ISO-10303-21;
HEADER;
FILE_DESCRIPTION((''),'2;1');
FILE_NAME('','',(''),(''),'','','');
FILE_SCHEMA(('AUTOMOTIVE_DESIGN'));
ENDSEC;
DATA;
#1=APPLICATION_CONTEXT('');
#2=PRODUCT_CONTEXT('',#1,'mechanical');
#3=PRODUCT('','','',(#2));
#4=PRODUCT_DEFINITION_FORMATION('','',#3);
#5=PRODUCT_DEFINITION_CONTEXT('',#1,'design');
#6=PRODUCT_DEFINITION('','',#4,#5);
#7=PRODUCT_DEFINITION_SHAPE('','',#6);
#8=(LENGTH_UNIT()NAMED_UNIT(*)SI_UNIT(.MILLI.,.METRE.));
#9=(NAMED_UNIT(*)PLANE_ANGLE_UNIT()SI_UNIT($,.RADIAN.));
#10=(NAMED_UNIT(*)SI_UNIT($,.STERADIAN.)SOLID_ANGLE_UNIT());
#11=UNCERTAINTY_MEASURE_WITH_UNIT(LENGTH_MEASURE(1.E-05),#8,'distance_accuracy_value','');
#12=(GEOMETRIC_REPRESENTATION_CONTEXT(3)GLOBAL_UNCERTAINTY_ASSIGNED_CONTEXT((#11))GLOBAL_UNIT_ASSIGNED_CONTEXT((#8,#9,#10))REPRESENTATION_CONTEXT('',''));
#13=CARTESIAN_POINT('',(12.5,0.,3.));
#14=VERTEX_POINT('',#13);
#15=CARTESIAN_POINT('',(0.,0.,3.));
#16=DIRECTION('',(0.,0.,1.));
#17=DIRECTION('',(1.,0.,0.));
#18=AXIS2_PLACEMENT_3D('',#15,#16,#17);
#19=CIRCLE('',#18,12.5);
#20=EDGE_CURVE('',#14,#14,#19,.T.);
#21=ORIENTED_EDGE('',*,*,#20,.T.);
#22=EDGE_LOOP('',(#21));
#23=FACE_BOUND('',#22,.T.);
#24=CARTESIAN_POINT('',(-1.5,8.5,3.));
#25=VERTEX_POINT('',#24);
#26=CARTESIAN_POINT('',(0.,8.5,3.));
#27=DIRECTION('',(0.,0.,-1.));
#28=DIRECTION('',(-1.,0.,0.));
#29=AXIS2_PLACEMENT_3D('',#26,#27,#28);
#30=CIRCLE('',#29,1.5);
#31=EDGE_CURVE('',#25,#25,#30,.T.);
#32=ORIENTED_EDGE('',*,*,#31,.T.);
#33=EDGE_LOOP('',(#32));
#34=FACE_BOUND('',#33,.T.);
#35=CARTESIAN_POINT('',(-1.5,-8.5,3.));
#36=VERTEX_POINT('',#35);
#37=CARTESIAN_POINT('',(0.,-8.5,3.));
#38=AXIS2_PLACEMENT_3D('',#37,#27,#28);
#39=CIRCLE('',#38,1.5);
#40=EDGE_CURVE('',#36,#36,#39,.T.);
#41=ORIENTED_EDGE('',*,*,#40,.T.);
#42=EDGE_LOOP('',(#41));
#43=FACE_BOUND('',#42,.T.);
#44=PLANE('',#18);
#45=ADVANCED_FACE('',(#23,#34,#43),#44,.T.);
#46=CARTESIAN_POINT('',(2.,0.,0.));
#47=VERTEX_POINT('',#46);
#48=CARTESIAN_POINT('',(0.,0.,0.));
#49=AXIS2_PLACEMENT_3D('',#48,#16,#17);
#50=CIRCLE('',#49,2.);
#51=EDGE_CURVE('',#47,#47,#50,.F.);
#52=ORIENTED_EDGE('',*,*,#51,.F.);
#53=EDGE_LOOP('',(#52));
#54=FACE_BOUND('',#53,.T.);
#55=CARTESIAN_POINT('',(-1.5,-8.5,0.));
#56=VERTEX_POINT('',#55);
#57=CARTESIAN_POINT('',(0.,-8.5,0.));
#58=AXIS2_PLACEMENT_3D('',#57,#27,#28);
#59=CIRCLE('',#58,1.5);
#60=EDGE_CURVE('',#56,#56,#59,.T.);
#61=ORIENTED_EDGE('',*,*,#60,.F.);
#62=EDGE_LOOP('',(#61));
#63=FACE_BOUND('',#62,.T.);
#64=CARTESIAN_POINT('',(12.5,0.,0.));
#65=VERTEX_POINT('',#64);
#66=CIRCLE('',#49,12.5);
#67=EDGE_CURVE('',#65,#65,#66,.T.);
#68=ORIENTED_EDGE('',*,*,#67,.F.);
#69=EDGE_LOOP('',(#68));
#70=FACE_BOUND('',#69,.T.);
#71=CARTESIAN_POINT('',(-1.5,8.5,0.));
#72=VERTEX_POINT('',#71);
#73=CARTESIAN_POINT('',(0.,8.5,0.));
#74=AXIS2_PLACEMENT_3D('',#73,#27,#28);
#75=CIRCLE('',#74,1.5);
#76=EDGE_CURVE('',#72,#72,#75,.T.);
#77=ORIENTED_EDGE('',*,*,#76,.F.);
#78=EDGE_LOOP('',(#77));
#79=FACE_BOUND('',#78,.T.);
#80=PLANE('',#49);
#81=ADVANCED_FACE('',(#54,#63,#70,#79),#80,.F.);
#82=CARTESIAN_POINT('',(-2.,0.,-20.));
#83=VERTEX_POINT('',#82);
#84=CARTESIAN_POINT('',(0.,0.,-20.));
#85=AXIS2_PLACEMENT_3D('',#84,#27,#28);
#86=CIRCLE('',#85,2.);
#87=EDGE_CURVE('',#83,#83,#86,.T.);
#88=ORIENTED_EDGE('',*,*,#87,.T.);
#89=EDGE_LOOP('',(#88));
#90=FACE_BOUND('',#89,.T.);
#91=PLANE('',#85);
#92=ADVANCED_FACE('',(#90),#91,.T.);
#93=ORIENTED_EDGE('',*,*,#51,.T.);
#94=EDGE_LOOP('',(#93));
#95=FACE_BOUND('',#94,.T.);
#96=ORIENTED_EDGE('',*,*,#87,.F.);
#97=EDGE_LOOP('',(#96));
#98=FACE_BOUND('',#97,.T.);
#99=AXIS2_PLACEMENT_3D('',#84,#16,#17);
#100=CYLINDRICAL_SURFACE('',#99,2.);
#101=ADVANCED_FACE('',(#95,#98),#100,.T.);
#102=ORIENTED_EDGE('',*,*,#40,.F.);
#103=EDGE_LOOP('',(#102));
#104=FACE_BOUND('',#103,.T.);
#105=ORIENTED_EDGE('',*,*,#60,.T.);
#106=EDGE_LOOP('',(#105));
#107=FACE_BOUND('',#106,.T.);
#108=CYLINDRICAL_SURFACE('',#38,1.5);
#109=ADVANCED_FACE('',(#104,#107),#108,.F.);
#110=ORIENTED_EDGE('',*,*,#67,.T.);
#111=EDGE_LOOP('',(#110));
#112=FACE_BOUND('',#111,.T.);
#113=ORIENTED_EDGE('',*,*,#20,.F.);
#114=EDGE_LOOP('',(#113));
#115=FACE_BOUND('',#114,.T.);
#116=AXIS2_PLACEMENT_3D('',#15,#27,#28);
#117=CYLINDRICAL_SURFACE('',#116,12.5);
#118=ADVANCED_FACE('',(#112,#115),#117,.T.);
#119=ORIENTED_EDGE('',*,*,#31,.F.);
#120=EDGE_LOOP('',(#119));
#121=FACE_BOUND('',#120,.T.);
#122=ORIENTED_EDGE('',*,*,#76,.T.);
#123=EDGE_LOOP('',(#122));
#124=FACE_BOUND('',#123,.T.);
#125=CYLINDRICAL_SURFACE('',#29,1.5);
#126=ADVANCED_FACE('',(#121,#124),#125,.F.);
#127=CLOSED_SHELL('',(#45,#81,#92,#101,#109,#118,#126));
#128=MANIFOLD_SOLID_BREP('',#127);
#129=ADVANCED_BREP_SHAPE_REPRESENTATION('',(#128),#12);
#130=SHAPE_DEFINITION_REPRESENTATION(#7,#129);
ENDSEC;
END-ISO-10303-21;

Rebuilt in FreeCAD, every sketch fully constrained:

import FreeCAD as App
import Part
import Sketcher

V = App.Vector
Q = App.Units.Quantity

doc = App.newDocument("Part")
body = doc.addObject("PartDesign::Body", "Body")

# Sketch on XY plane
sketch1 = body.newObject("Sketcher::SketchObject", "Sketch")
sketch1.AttachmentSupport = (doc.getObject("XY_Plane"), [""])
sketch1.MapMode = "FlatFace"
sketch1.addGeometry(Part.Circle(V(0, 0, 0), V(0, 0, 1), 12), False)
sketch1.addConstraint(Sketcher.Constraint("Coincident", 0, 3, -1, 1))
sketch1.addConstraint(Sketcher.Constraint("Diameter", 0, Q("25 mm")))
pad1 = body.newObject("PartDesign::Pad", "Pad")
pad1.Profile = sketch1
pad1.Length = 3

# Sketch on XY plane
sketch2 = body.newObject("Sketcher::SketchObject", "Sketch001")
sketch2.AttachmentSupport = (doc.getObject("XY_Plane"), [""])
sketch2.MapMode = "FlatFace"
sketch2.addGeometry(Part.Circle(V(0, 8.5, 0), V(0, 0, 1), 1.5), False)
sketch2.addGeometry(Part.Circle(V(0, -8.5, 0), V(0, 0, 1), 1.5), False)
sketch2.addConstraint(Sketcher.Constraint("Equal", 0, 1))
sketch2.addConstraint(Sketcher.Constraint("Symmetric", 0, 3, 1, 3, -1, 1))
sketch2.addConstraint(Sketcher.Constraint("PointOnObject", 0, 3, -2))
sketch2.addConstraint(Sketcher.Constraint("Diameter", 0, Q("3 mm")))
sketch2.addConstraint(Sketcher.Constraint("DistanceY", 1, 3, 0, 3, Q("17 mm")))
pocket1 = body.newObject("PartDesign::Pocket", "Pocket")
pocket1.Profile = sketch2
pocket1.Length = 3
pocket1.Reversed = True

# Sketch on XY plane
sketch3 = body.newObject("Sketcher::SketchObject", "Sketch002")
sketch3.AttachmentSupport = (doc.getObject("XY_Plane"), [""])
sketch3.MapMode = "FlatFace"
sketch3.addGeometry(Part.Circle(V(0, 0, 0), V(0, 0, 1), 2), False)
sketch3.addConstraint(Sketcher.Constraint("Coincident", 0, 3, -1, 1))
sketch3.addConstraint(Sketcher.Constraint("Diameter", 0, Q("4 mm")))
pad2 = body.newObject("PartDesign::Pad", "Pad001")
pad2.Profile = sketch3
pad2.Length = 20
pad2.Reversed = True

doc.recompute()
